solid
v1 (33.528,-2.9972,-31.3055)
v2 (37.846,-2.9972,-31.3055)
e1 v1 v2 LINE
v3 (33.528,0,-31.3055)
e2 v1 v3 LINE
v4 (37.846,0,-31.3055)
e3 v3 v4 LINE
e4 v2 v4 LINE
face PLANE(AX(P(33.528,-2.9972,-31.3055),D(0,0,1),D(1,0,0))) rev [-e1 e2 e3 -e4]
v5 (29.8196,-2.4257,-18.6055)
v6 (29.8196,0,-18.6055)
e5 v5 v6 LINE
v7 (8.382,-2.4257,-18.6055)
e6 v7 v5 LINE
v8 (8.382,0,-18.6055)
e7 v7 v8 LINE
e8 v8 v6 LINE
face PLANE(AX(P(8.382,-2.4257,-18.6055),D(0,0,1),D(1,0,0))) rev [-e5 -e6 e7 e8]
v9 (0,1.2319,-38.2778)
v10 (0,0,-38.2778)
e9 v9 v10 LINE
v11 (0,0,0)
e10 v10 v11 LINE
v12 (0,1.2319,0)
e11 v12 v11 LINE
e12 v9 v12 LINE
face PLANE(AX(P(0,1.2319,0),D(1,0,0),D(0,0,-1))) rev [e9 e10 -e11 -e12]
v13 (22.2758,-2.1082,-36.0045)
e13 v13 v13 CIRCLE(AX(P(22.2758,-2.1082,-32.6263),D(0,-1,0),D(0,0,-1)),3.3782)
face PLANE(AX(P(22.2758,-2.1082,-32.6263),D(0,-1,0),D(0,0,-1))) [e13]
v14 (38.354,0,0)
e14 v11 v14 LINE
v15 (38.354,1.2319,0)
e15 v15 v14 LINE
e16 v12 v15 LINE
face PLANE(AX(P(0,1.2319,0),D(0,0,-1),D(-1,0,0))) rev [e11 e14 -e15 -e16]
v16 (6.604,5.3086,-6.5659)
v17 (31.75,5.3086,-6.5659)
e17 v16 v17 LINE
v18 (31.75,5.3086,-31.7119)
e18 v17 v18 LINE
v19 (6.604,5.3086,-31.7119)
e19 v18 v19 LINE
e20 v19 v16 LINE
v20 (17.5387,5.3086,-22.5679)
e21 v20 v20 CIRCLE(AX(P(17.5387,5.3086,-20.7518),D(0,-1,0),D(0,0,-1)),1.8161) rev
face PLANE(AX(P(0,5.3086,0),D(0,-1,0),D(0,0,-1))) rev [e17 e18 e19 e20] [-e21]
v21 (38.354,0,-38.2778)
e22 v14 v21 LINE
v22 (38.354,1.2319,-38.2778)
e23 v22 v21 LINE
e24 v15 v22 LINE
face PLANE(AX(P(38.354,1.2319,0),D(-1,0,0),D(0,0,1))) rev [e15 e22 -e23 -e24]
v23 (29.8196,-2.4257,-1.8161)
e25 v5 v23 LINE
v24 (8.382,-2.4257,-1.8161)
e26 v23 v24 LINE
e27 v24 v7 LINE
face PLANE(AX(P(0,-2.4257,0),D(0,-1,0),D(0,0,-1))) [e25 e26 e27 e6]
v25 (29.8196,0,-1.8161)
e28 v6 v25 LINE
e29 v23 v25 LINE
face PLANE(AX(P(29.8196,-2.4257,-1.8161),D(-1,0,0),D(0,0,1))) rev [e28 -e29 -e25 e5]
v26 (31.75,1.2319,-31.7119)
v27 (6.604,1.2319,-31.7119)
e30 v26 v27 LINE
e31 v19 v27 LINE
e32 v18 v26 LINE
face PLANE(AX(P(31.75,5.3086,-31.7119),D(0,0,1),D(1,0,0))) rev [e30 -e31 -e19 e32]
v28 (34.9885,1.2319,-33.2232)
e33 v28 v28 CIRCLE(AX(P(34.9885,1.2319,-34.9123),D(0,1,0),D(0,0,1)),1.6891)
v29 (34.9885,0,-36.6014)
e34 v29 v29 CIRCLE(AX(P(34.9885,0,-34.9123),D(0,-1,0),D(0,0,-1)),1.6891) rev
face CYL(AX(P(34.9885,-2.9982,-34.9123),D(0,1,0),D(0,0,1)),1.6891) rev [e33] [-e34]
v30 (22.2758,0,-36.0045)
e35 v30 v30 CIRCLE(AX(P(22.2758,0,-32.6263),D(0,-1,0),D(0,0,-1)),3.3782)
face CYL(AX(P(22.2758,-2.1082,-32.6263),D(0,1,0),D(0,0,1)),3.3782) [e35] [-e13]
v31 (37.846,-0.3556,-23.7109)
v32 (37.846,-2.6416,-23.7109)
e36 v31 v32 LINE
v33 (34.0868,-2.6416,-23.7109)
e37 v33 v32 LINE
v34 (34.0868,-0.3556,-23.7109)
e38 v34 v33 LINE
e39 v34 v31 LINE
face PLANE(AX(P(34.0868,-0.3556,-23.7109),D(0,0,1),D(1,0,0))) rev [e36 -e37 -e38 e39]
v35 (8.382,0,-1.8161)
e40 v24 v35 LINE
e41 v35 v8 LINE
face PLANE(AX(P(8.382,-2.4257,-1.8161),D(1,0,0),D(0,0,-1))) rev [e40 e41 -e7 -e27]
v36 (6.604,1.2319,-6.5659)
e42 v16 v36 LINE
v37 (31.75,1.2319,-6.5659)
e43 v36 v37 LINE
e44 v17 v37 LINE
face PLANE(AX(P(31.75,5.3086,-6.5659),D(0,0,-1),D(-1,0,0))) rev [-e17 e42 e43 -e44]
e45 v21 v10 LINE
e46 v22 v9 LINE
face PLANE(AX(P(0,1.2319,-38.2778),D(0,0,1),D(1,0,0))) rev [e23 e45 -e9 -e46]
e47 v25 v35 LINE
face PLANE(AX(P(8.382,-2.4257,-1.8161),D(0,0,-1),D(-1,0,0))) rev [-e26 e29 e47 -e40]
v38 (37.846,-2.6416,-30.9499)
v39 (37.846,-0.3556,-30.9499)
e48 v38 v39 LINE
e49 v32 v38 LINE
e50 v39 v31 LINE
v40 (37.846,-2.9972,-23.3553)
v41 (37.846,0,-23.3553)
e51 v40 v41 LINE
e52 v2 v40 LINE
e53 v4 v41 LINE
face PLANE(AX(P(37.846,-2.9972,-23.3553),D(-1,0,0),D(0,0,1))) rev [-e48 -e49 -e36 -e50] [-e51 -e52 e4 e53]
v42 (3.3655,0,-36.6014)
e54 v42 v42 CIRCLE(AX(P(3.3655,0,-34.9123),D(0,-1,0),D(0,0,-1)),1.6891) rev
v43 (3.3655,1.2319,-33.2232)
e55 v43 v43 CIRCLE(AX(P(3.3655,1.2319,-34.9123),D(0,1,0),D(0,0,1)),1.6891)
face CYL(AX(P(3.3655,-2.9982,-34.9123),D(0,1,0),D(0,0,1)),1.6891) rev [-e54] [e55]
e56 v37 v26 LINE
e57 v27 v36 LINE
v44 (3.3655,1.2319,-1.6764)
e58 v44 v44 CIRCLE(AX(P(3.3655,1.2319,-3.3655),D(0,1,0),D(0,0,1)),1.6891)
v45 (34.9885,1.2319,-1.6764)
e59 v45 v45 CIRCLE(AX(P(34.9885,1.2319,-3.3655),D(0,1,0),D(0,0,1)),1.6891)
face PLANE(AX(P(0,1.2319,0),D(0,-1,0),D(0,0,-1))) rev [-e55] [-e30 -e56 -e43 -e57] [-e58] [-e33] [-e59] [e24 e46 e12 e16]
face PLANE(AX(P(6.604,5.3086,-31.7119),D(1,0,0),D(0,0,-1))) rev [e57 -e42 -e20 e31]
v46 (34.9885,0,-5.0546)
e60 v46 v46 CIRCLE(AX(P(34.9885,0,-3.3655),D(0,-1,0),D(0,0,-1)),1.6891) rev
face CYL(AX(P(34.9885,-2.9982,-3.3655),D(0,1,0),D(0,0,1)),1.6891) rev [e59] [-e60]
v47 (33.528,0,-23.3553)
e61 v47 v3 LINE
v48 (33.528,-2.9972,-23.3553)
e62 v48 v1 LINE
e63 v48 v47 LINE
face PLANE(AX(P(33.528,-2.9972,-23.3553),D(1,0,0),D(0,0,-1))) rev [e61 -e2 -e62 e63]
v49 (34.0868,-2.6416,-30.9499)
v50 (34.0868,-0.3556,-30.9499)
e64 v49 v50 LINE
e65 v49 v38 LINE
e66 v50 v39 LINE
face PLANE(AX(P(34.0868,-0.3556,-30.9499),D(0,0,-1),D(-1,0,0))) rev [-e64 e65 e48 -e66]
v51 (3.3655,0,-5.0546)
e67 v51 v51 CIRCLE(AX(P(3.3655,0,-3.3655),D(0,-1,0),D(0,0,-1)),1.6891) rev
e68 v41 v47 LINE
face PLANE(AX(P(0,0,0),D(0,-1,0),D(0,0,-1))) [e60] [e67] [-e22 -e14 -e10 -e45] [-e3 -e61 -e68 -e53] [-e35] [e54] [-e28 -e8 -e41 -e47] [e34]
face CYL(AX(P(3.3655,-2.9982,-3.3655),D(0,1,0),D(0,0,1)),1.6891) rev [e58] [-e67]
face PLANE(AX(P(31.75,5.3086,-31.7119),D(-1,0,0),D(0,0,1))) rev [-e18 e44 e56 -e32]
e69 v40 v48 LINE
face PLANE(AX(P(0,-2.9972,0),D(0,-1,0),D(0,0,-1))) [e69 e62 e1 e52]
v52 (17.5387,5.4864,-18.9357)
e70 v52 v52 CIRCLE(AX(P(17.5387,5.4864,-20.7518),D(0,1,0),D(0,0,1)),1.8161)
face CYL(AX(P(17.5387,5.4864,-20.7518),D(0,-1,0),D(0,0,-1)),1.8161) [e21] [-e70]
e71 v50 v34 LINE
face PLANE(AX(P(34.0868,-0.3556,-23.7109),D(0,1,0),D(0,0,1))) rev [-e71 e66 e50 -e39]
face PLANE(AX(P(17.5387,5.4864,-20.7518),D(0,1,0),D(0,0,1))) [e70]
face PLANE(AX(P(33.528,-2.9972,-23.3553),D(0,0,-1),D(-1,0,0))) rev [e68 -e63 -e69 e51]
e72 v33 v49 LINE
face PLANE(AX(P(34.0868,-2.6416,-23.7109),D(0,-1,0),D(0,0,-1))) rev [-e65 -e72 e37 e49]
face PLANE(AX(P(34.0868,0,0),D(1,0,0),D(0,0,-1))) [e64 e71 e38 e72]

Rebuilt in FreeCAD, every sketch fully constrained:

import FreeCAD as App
import Part
import Sketcher

V = App.Vector
Q = App.Units.Quantity

doc = App.newDocument("Part")
body = doc.addObject("PartDesign::Body", "Body")

# Sketch on XZ plane
sketch1 = doc.addObject("Sketcher::SketchObject", "Sketch")
body.addObject(sketch1)
sketch1.AttachmentSupport = (doc.XZ_Plane, [""])
sketch1.MapMode = "FlatFace"
sketch1.addGeometry(Part.LineSegment(V(0, -38, 0), V(0, 0, 0)), False)
sketch1.addGeometry(Part.LineSegment(V(0, 0, 0), V(38, 0, 0)), False)
sketch1.addGeometry(Part.LineSegment(V(38, 0, 0), V(38, -38, 0)), False)
sketch1.addGeometry(Part.LineSegment(V(38, -38, 0), V(0, -38, 0)), False)
sketch1.addConstraint(Sketcher.Constraint("Coincident", 0, 2, 1, 1))
sketch1.addConstraint(Sketcher.Constraint("Coincident", 1, 2, 2, 1))
sketch1.addConstraint(Sketcher.Constraint("Coincident", 2, 2, 3, 1))
sketch1.addConstraint(Sketcher.Constraint("Coincident", 3, 2, 0, 1))
sketch1.addConstraint(Sketcher.Constraint("Vertical", 0))
sketch1.addConstraint(Sketcher.Constraint("Horizontal", 1))
sketch1.addConstraint(Sketcher.Constraint("Vertical", 2))
sketch1.addConstraint(Sketcher.Constraint("Horizontal", 3))
sketch1.addConstraint(Sketcher.Constraint("Coincident", 0, 2, -1, 1))
sketch1.addConstraint(Sketcher.Constraint("DistanceX", 1, 1, 1, 2, Q("1.51 in")))
sketch1.addConstraint(Sketcher.Constraint("DistanceY", 0, 1, 0, 2, Q("1.507 in")))
pad1 = doc.addObject("PartDesign::Pad", "Pad")
body.addObject(pad1)
pad1.Profile = sketch1
pad1.Length = Q("0.0485 in")
pad1.Reversed = True

# Sketch on XZ plane
sketch2 = doc.addObject("Sketcher::SketchObject", "Sketch001")
body.addObject(sketch2)
sketch2.AttachmentSupport = (doc.XZ_Plane, [""])
sketch2.MapMode = "FlatFace"
sketch2.AttachmentOffset = App.Placement(V(0, 0, -0.0485 * 25.4), App.Rotation())
sketch2.addGeometry(Part.LineSegment(V(7, -32, 0), V(7, -7, 0)), False)
sketch2.addGeometry(Part.LineSegment(V(7, -7, 0), V(32, -7, 0)), False)
sketch2.addGeometry(Part.LineSegment(V(32, -7, 0), V(32, -32, 0)), False)
sketch2.addGeometry(Part.LineSegment(V(32, -32, 0), V(7, -32, 0)), False)
sketch2.addConstraint(Sketcher.Constraint("Coincident", 0, 2, 1, 1))
sketch2.addConstraint(Sketcher.Constraint("Coincident", 1, 2, 2, 1))
sketch2.addConstraint(Sketcher.Constraint("Coincident", 2, 2, 3, 1))
sketch2.addConstraint(Sketcher.Constraint("Coincident", 3, 2, 0, 1))
sketch2.addConstraint(Sketcher.Constraint("Vertical", 0))
sketch2.addConstraint(Sketcher.Constraint("Horizontal", 1))
sketch2.addConstraint(Sketcher.Constraint("Vertical", 2))
sketch2.addConstraint(Sketcher.Constraint("Horizontal", 3))
sketch2.addConstraint(Sketcher.Constraint("Equal", 3, 0))
sketch2.addConstraint(Sketcher.Constraint("DistanceX", 1, 1, 1, 2, Q("0.99 in")))
sketch2.addConstraint(Sketcher.Constraint("DistanceX", -1, 1, 0, 2, Q("0.26 in")))
sketch2.addConstraint(Sketcher.Constraint("DistanceY", 0, 2, -1, 1, Q("0.2585 in")))
pad2 = doc.addObject("PartDesign::Pad", "Pad001")
body.addObject(pad2)
pad2.Profile = sketch2
pad2.Length = Q("0.1605 in")
pad2.Reversed = True

# Sketch on XZ plane
sketch3 = doc.addObject("Sketcher::SketchObject", "Sketch002")
body.addObject(sketch3)
sketch3.AttachmentSupport = (doc.XZ_Plane, [""])
sketch3.MapMode = "FlatFace"
sketch3.addGeometry(Part.LineSegment(V(8, -2, 0), V(8, -19, 0)), False)
sketch3.addGeometry(Part.LineSegment(V(8, -19, 0), V(30, -19, 0)), False)
sketch3.addGeometry(Part.LineSegment(V(30, -19, 0), V(30, -2, 0)), False)
sketch3.addGeometry(Part.LineSegment(V(30, -2, 0), V(8, -2, 0)), False)
sketch3.addConstraint(Sketcher.Constraint("Coincident", 0, 2, 1, 1))
sketch3.addConstraint(Sketcher.Constraint("Coincident", 1, 2, 2, 1))
sketch3.addConstraint(Sketcher.Constraint("Coincident", 2, 2, 3, 1))
sketch3.addConstraint(Sketcher.Constraint("Coincident", 3, 2, 0, 1))
sketch3.addConstraint(Sketcher.Constraint("Vertical", 0))
sketch3.addConstraint(Sketcher.Constraint("Horizontal", 1))
sketch3.addConstraint(Sketcher.Constraint("Vertical", 2))
sketch3.addConstraint(Sketcher.Constraint("Horizontal", 3))
sketch3.addConstraint(Sketcher.Constraint("DistanceX", 1, 1, 1, 2, Q("0.844 in")))
sketch3.addConstraint(Sketcher.Constraint("DistanceY", 0, 2, 0, 1, Q("0.661 in")))
sketch3.addConstraint(Sketcher.Constraint("DistanceX", -1, 1, 0, 2, Q("0.33 in")))
sketch3.addConstraint(Sketcher.Constraint("DistanceY", 0, 2, -1, 1, Q("0.7325 in")))
pad3 = doc.addObject("PartDesign::Pad", "Pad002")
body.addObject(pad3)
pad3.Profile = sketch3
pad3.Length = Q("0.0955 in")

# Sketch on XZ plane
sketch4 = doc.addObject("Sketcher::SketchObject", "Sketch003")
body.addObject(sketch4)
sketch4.AttachmentSupport = (doc.XZ_Plane, [""])
sketch4.MapMode = "FlatFace"
sketch4.addGeometry(Part.Circle(V(22.3, -32.6, 0), V(0, 0, 1), 3.4), False)
sketch4.addConstraint(Sketcher.Constraint("Diameter", 0, Q("0.266 in")))
sketch4.addConstraint(Sketcher.Constraint("DistanceX", -1, 1, 0, 3, Q("0.877 in")))
sketch4.addConstraint(Sketcher.Constraint("DistanceY", 0, 3, -1, 1, Q("1.2845 in")))
pad4 = doc.addObject("PartDesign::Pad", "Pad003")
body.addObject(pad4)
pad4.Profile = sketch4
pad4.Length = Q("0.083 in")

# Sketch on XZ plane
sketch5 = doc.addObject("Sketcher::SketchObject", "Sketch004")
body.addObject(sketch5)
sketch5.AttachmentSupport = (doc.XZ_Plane, [""])
sketch5.MapMode = "FlatFace"
sketch5.addGeometry(Part.LineSegment(V(37.8, -31.3, 0), V(37.8, -23.4, 0)), False)
sketch5.addGeometry(Part.LineSegment(V(37.8, -23.4, 0), V(33.5, -23.4, 0)), False)
sketch5.addGeometry(Part.LineSegment(V(33.5, -23.4, 0), V(33.5, -31.3, 0)), False)
sketch5.addGeometry(Part.LineSegment(V(33.5, -31.3, 0), V(37.8, -31.3, 0)), False)
sketch5.addConstraint(Sketcher.Constraint("Coincident", 0, 2, 1, 1))
sketch5.addConstraint(Sketcher.Constraint("Coincident", 1, 2, 2, 1))
sketch5.addConstraint(Sketcher.Constraint("Coincident", 2, 2, 3, 1))
sketch5.addConstraint(Sketcher.Constraint("Coincident", 3, 2, 0, 1))
sketch5.addConstraint(Sketcher.Constraint("Vertical", 0))
sketch5.addConstraint(Sketcher.Constraint("Horizontal", 1))
sketch5.addConstraint(Sketcher.Constraint("Vertical", 2))
sketch5.addConstraint(Sketcher.Constraint("Horizontal", 3))
sketch5.addConstraint(Sketcher.Constraint("DistanceX", 1, 2, 1, 1, Q("0.17 in")))
sketch5.addConstraint(Sketcher.Constraint("DistanceY", 0, 1, 0, 2, Q("0.313 in")))
sketch5.addConstraint(Sketcher.Constraint("DistanceX", -1, 1, 0, 2, Q("1.49 in")))
sketch5.addConstraint(Sketcher.Constraint("DistanceY", 0, 2, -1, 1, Q("0.9195 in")))
pad5 = doc.addObject("PartDesign::Pad", "Pad004")
body.addObject(pad5)
pad5.Profile = sketch5
pad5.Length = Q("0.118 in")

# Sketch on YZ plane
sketch6 = doc.addObject("Sketcher::SketchObject", "Sketch005")
body.addObject(sketch6)
sketch6.AttachmentSupport = (doc.YZ_Plane, [""])
sketch6.MapMode = "FlatFace"
sketch6.AttachmentOffset = App.Placement(V(0, 0, 1.49 * 25.4), App.Rotation())
sketch6.addGeometry(Part.LineSegment(V(-0.4, -23.7, 0), V(-2.6, -23.7, 0)), False)
sketch6.addGeometry(Part.LineSegment(V(-2.6, -23.7, 0), V(-2.6, -30.9, 0)), False)
sketch6.addGeometry(Part.LineSegment(V(-2.6, -30.9, 0), V(-0.4, -30.9, 0)), False)
sketch6.addGeometry(Part.LineSegment(V(-0.4, -30.9, 0), V(-0.4, -23.7, 0)), False)
sketch6.addConstraint(Sketcher.Constraint("Coincident", 0, 2, 1, 1))
sketch6.addConstraint(Sketcher.Constraint("Coincident", 1, 2, 2, 1))
sketch6.addConstraint(Sketcher.Constraint("Coincident", 2, 2, 3, 1))
sketch6.addConstraint(Sketcher.Constraint("Coincident", 3, 2, 0, 1))
sketch6.addConstraint(Sketcher.Constraint("Horizontal", 0))
sketch6.addConstraint(Sketcher.Constraint("Vertical", 1))
sketch6.addConstraint(Sketcher.Constraint("Horizontal", 2))
sketch6.addConstraint(Sketcher.Constraint("Vertical", 3))
sketch6.addConstraint(Sketcher.Constraint("DistanceX", 0, 2, 0, 1, Q("0.09 in")))
sketch6.addConstraint(Sketcher.Constraint("DistanceY", 1, 2, 1, 1, Q("0.285 in")))
sketch6.addConstraint(Sketcher.Constraint("DistanceX", 0, 2, -1, 1, Q("0.104 in")))
sketch6.addConstraint(Sketcher.Constraint("DistanceY", 0, 2, -1, 1, Q("0.9335 in")))
pocket1 = doc.addObject("PartDesign::Pocket", "Pocket")
body.addObject(pocket1)
pocket1.Profile = sketch6
pocket1.Length = Q("0.148 in")

# Sketch on XZ plane
sketch7 = doc.addObject("Sketcher::SketchObject", "Sketch006")
body.addObject(sketch7)
sketch7.AttachmentSupport = (doc.XZ_Plane, [""])
sketch7.MapMode = "FlatFace"
sketch7.AttachmentOffset = App.Placement(V(0, 0, -0.0485 * 25.4), App.Rotation())
sketch7.addGeometry(Part.Circle(V(35, -3.4, 0), V(0, 0, 1), 1.7), False)
sketch7.addConstraint(Sketcher.Constraint("Diameter", 0, Q("0.133 in")))
sketch7.addConstraint(Sketcher.Constraint("DistanceX", -1, 1, 0, 3, Q("1.3775 in")))
sketch7.addConstraint(Sketcher.Constraint("DistanceY", 0, 3, -1, 1, Q("0.1325 in")))
pocket2 = doc.addObject("PartDesign::Pocket", "Pocket001")
body.addObject(pocket2)
pocket2.Profile = sketch7
pocket2.Type = "UpToFirst"
pocket2.Reversed = True

# Sketch on XZ plane
sketch8 = doc.addObject("Sketcher::SketchObject", "Sketch007")
body.addObject(sketch8)
sketch8.AttachmentSupport = (doc.XZ_Plane, [""])
sketch8.MapMode = "FlatFace"
sketch8.AttachmentOffset = App.Placement(V(0, 0, -0.0485 * 25.4), App.Rotation())
sketch8.addGeometry(Part.Circle(V(3.4, -3.4, 0), V(0, 0, 1), 1.7), False)
sketch8.addConstraint(Sketcher.Constraint("Diameter", 0, Q("0.133 in")))
sketch8.addConstraint(Sketcher.Constraint("DistanceX", -1, 1, 0, 3, Q("0.1325 in")))
sketch8.addConstraint(Sketcher.Constraint("DistanceY", 0, 3, -1, 1, Q("0.1325 in")))
pocket3 = doc.addObject("PartDesign::Pocket", "Pocket002")
body.addObject(pocket3)
pocket3.Profile = sketch8
pocket3.Type = "UpToFirst"
pocket3.Reversed = True

# Sketch on XZ plane
sketch9 = doc.addObject("Sketcher::SketchObject", "Sketch008")
body.addObject(sketch9)
sketch9.AttachmentSupport = (doc.XZ_Plane, [""])
sketch9.MapMode = "FlatFace"
sketch9.AttachmentOffset = App.Placement(V(0, 0, -0.0485 * 25.4), App.Rotation())
sketch9.addGeometry(Part.Circle(V(3.4, -34.9, 0), V(0, 0, 1), 1.7), False)
sketch9.addConstraint(Sketcher.Constraint("Diameter", 0, Q("0.133 in")))
sketch9.addConstraint(Sketcher.Constraint("DistanceX", -1, 1, 0, 3, Q("0.1325 in")))
sketch9.addConstraint(Sketcher.Constraint("DistanceY", 0, 3, -1, 1, Q("1.3745 in")))
pocket4 = doc.addObject("PartDesign::Pocket", "Pocket003")
body.addObject(pocket4)
pocket4.Profile = sketch9
pocket4.Type = "UpToFirst"
pocket4.Reversed = True

# Sketch on XZ plane
sketch10 = doc.addObject("Sketcher::SketchObject", "Sketch009")
body.addObject(sketch10)
sketch10.AttachmentSupport = (doc.XZ_Plane, [""])
sketch10.MapMode = "FlatFace"
sketch10.AttachmentOffset = App.Placement(V(0, 0, -0.0485 * 25.4), App.Rotation())
sketch10.addGeometry(Part.Circle(V(35, -34.9, 0), V(0, 0, 1), 1.7), False)
sketch10.addConstraint(Sketcher.Constraint("Diameter", 0, Q("0.133 in")))
sketch10.addConstraint(Sketcher.Constraint("DistanceX", -1, 1, 0, 3, Q("1.3775 in")))
sketch10.addConstraint(Sketcher.Constraint("DistanceY", 0, 3, -1, 1, Q("1.3745 in")))
pocket5 = doc.addObject("PartDesign::Pocket", "Pocket004")
body.addObject(pocket5)
pocket5.Profile = sketch10
pocket5.Type = "UpToFirst"
pocket5.Reversed = True

# Sketch on XZ plane
sketch11 = doc.addObject("Sketcher::SketchObject", "Sketch010")
body.addObject(sketch11)
sketch11.AttachmentSupport = (doc.XZ_Plane, [""])
sketch11.MapMode = "FlatFace"
sketch11.AttachmentOffset = App.Placement(V(0, 0, -0.209 * 25.4), App.Rotation())
sketch11.addGeometry(Part.Circle(V(17.5, -20.8, 0), V(0, 0, 1), 1.8), False)
sketch11.addConstraint(Sketcher.Constraint("Diameter", 0, Q("0.143 in")))
sketch11.addConstraint(Sketcher.Constraint("DistanceY", 0, 3, -1, 1, Q("0.817 in")))
sketch11.addConstraint(Sketcher.Constraint("DistanceX", -1, 1, 0, 3, Q("0.6905 in")))
pad6 = doc.addObject("PartDesign::Pad", "Pad005")
body.addObject(pad6)
pad6.Profile = sketch11
pad6.Length = Q("0.007 in")
pad6.Reversed = True

doc.recompute()
